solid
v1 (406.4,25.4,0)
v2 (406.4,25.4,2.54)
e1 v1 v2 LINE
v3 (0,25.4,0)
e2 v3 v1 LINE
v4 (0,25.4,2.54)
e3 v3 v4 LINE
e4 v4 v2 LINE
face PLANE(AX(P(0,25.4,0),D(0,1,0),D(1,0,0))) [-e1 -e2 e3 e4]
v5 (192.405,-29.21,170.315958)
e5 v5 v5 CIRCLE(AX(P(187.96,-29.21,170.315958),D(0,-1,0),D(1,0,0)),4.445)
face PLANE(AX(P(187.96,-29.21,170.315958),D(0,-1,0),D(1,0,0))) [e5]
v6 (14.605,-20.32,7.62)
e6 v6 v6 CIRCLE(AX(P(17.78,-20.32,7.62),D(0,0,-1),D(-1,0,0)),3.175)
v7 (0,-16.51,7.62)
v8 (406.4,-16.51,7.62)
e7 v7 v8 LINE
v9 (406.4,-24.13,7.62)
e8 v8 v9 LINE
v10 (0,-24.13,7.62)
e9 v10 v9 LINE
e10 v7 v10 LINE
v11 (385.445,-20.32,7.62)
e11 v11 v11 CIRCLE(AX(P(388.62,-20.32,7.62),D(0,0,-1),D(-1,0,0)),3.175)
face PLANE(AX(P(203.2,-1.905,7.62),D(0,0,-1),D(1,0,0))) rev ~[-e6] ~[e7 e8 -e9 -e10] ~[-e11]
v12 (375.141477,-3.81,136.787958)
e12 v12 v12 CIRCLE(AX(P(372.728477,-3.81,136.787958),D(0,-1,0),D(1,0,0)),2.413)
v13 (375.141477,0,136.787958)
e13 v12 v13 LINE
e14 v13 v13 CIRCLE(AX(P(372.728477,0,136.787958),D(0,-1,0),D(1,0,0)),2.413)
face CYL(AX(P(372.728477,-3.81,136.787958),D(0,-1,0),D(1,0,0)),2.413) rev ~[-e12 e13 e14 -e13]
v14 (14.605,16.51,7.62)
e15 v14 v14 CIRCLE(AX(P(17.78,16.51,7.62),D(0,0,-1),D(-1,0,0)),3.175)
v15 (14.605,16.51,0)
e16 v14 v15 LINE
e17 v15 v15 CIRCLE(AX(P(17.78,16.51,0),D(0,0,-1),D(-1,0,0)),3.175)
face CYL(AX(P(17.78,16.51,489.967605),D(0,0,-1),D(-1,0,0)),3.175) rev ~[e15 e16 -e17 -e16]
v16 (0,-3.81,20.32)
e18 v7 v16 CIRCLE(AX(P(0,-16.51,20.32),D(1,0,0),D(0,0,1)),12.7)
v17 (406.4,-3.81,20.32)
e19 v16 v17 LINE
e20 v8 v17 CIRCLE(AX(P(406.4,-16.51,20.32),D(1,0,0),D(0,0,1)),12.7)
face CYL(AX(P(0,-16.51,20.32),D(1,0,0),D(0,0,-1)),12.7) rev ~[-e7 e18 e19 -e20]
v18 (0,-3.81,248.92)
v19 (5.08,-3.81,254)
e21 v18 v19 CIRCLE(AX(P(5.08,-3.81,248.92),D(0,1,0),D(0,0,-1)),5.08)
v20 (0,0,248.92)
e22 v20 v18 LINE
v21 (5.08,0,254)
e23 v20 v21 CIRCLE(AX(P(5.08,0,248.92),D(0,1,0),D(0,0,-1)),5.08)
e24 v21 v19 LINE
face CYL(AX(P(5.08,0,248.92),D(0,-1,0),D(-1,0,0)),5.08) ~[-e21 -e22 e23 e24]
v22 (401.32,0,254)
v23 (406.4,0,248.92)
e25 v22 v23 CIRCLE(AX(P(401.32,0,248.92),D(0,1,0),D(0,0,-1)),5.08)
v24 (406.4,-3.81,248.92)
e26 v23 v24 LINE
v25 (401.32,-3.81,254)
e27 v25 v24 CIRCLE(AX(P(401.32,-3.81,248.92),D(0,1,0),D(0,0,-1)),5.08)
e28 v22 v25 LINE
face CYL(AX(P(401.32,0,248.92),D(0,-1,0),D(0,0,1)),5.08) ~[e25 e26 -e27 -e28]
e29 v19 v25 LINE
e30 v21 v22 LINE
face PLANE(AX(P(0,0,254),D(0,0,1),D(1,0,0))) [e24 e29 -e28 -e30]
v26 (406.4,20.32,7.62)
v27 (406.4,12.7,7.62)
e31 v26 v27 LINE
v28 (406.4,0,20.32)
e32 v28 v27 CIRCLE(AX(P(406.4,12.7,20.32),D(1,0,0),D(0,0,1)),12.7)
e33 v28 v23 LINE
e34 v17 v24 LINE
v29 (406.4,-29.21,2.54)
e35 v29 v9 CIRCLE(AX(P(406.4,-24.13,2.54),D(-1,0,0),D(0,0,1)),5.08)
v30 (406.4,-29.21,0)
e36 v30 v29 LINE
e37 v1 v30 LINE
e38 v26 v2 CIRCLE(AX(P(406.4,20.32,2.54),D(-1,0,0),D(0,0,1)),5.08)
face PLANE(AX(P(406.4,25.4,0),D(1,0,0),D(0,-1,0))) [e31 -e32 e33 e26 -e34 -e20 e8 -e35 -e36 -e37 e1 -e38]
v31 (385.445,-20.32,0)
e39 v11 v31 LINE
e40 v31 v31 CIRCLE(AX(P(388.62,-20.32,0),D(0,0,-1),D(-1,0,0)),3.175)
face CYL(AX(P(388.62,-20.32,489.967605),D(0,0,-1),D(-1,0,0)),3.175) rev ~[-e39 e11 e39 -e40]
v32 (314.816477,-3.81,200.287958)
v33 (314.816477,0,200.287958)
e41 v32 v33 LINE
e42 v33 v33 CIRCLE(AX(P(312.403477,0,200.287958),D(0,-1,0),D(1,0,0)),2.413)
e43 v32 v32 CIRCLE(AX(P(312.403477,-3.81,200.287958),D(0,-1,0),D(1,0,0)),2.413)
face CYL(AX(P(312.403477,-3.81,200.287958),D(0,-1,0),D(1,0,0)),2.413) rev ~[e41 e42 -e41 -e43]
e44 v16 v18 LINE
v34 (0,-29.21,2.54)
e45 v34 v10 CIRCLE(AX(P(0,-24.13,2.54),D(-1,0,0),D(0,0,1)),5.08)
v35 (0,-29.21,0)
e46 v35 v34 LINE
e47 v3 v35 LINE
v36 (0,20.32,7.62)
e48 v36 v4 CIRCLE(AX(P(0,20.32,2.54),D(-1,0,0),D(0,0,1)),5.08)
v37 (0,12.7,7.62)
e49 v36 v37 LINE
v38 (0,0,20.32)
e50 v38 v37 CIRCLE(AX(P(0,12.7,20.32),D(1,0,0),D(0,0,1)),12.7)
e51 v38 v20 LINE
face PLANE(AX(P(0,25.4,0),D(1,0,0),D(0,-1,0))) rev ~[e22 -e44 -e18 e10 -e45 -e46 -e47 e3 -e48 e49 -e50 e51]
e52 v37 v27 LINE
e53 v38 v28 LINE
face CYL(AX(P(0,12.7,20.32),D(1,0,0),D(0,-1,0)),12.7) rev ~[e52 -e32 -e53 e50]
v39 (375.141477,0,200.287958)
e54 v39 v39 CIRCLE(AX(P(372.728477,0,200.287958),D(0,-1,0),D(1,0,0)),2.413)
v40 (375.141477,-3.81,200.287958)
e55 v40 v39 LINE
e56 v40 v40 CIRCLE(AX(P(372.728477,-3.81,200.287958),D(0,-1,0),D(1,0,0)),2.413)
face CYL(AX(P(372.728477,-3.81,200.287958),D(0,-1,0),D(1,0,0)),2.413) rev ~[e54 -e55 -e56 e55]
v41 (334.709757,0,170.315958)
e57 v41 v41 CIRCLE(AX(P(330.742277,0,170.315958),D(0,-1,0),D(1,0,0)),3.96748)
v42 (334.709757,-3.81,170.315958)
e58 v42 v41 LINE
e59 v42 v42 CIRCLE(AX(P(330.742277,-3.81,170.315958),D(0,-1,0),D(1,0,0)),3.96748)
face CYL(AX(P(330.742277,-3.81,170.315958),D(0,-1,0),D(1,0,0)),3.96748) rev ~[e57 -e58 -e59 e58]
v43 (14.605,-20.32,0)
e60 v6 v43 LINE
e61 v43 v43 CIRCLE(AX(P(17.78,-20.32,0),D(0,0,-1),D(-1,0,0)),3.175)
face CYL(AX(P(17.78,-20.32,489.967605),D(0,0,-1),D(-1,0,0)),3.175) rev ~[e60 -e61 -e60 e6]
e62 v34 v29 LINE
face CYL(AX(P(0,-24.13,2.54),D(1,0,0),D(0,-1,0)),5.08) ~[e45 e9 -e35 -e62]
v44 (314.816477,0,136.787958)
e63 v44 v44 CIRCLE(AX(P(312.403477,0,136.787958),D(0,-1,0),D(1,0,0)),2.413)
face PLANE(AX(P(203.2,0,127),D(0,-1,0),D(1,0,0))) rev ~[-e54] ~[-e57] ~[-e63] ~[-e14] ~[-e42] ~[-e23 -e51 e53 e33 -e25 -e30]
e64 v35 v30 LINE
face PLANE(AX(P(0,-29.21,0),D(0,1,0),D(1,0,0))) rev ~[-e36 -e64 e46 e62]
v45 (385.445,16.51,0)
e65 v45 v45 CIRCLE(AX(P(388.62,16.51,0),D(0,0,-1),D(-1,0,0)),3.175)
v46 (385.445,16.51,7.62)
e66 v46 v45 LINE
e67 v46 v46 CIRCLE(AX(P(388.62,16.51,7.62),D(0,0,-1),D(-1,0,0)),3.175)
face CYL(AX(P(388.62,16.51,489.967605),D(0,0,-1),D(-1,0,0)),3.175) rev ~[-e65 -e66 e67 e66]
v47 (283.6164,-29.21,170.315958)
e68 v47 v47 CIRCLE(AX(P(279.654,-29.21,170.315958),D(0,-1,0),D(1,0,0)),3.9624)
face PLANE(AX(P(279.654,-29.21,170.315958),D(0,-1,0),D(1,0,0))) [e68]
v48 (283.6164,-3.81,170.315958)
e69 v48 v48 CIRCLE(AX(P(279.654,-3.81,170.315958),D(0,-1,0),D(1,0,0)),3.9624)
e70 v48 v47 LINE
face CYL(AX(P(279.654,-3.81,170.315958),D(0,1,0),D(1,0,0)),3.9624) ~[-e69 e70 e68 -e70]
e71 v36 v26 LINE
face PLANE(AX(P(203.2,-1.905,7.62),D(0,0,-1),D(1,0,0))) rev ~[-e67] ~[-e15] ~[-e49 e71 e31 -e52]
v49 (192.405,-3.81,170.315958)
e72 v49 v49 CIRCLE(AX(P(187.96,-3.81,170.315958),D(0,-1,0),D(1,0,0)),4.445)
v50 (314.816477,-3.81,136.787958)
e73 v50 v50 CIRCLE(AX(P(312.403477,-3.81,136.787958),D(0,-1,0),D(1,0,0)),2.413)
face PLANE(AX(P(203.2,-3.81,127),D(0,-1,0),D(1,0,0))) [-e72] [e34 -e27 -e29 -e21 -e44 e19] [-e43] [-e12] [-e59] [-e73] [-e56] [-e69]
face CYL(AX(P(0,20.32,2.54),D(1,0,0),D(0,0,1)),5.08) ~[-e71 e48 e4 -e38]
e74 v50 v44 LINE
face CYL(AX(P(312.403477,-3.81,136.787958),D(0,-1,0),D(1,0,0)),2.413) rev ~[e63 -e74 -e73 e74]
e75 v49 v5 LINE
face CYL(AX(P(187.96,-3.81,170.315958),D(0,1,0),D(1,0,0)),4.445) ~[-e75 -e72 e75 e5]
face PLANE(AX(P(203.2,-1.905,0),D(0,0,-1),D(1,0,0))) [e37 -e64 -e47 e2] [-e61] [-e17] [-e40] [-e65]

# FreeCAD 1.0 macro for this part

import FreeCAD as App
import Part
import Sketcher
Q = App.Units.Quantity


def edges_at(feature, points):
    """Names of the edges that pass closest to the given points."""
    edges = feature.Shape.Edges
    near = lambda p: min(range(len(edges)), key=lambda i: edges[i].distToShape(Part.Vertex(*p))[0])
    return sorted({f"Edge{near(p) + 1}" for p in points})

doc = App.newDocument("Part")
body = doc.addObject("PartDesign::Body", "Body")

sketch1 = body.newObject("Sketcher::SketchObject", "Sketch")
sketch1.AttachmentSupport = (doc.getObject("XZ_Plane"), [""])
sketch1.MapMode = "FlatFace"
sketch1.addGeometry([
    Part.LineSegment(App.Vector(0, 254, 0), App.Vector(0, 0, 0)),
    Part.LineSegment(App.Vector(0, 0, 0), App.Vector(406, 0, 0)),
    Part.LineSegment(App.Vector(406, 0, 0), App.Vector(406, 254, 0)),
    Part.LineSegment(App.Vector(406, 254, 0), App.Vector(0, 254, 0)),
], False)
sketch1.addConstraint([
    Sketcher.Constraint("Coincident", 0, 2, 1, 1),
    Sketcher.Constraint("Coincident", 1, 2, 2, 1),
    Sketcher.Constraint("Coincident", 2, 2, 3, 1),
    Sketcher.Constraint("Coincident", 3, 2, 0, 1),
    Sketcher.Constraint("Vertical", 0),
    Sketcher.Constraint("Horizontal", 1),
    Sketcher.Constraint("Vertical", 2),
    Sketcher.Constraint("Horizontal", 3),
    Sketcher.Constraint("Coincident", 0, 2, -1, 1),
    Sketcher.Constraint("DistanceX", 1, 1, 1, 2, Q("16 in")),
    Sketcher.Constraint("DistanceY", 0, 2, 0, 1, Q("10 in")),
])
pad1 = body.newObject("PartDesign::Pad", "Pad")
pad1.Profile = sketch1
pad1.Length = Q("0.15 in")

sketch2 = body.newObject("Sketcher::SketchObject", "Sketch001")
sketch2.AttachmentSupport = (doc.getObject("XY_Plane"), [""])
sketch2.MapMode = "FlatFace"
sketch2.addGeometry([
    Part.LineSegment(App.Vector(0, -29, 0), App.Vector(0, 25, 0)),
    Part.LineSegment(App.Vector(0, 25, 0), App.Vector(406, 25, 0)),
    Part.LineSegment(App.Vector(406, 25, 0), App.Vector(406, -29, 0)),
    Part.LineSegment(App.Vector(406, -29, 0), App.Vector(0, -29, 0)),
], False)
sketch2.addConstraint([
    Sketcher.Constraint("Coincident", 0, 2, 1, 1),
    Sketcher.Constraint("Coincident", 1, 2, 2, 1),
    Sketcher.Constraint("Coincident", 2, 2, 3, 1),
    Sketcher.Constraint("Coincident", 3, 2, 0, 1),
    Sketcher.Constraint("Vertical", 0),
    Sketcher.Constraint("Horizontal", 1),
    Sketcher.Constraint("Vertical", 2),
    Sketcher.Constraint("Horizontal", 3),
    Sketcher.Constraint("PointOnObject", 0, 2, -2),
    Sketcher.Constraint("DistanceX", 1, 1, 1, 2, Q("16 in")),
    Sketcher.Constraint("DistanceY", -1, 1, 0, 2, Q("1 in")),
    Sketcher.Constraint("DistanceY", 0, 1, 0, 2, Q("2.15 in")),
])
pad2 = body.newObject("PartDesign::Pad", "Pad001")
pad2.Profile = sketch2
pad2.Length = Q("0.3 in")
doc.recompute()

fillet = body.newObject("PartDesign::Fillet", "Fillet")
fillet.Base = (pad2, edges_at(pad2, [(203.2, 0, 7.62), (203.2, -3.81, 7.62)]))
fillet.Radius = Q("0.5 in")
doc.recompute()

fillet2 = body.newObject("PartDesign::Fillet", "Fillet001")
fillet2.Base = (fillet, edges_at(fillet, [
    (203.2, -29.21, 7.62),
    (203.2, 25.4, 7.62),
    (406.4, -1.905, 254),
    (0, -1.905, 254),
]))
fillet2.Radius = Q("0.2 in")

sketch3 = body.newObject("Sketcher::SketchObject", "Sketch002")
sketch3.AttachmentSupport = (doc.getObject("XZ_Plane"), [""])
sketch3.MapMode = "FlatFace"
sketch3.AttachmentOffset = App.Placement(App.Vector(0, 0, 0.15 * 25.4), App.Rotation())
sketch3.addGeometry([
    Part.Circle(App.Vector(312.4, 200.3, 0), App.Vector(0, 0, 1), 2.4),
    Part.Circle(App.Vector(372.7, 200.3, 0), App.Vector(0, 0, 1), 2.4),
    Part.Circle(App.Vector(312.4, 136.8, 0), App.Vector(0, 0, 1), 2.4),
    Part.Circle(App.Vector(372.7, 136.8, 0), App.Vector(0, 0, 1), 2.4),
    Part.Circle(App.Vector(330.7, 170.3, 0), App.Vector(0, 0, 1), 4),
], False)
sketch3.addConstraint([
    Sketcher.Constraint("Equal", 0, 1),
    Sketcher.Constraint("Equal", 1, 2),
    Sketcher.Constraint("Equal", 2, 3),
    Sketcher.Constraint("Horizontal", 0, 3, 1, 3),
    Sketcher.Constraint("Horizontal", 2, 3, 3, 3),
    Sketcher.Constraint("Vertical", 0, 3, 2, 3),
    Sketcher.Constraint("Vertical", 1, 3, 3, 3),
    Sketcher.Constraint("Diameter", 0, Q("0.19 in")),
    Sketcher.Constraint("Diameter", 4, Q("0.3124 in")),
    Sketcher.Constraint("DistanceY", 2, 3, 0, 3, Q("2.5 in")),
    Sketcher.Constraint("DistanceY", 4, 3, 0, 3, Q("1.18 in")),
    Sketcher.Constraint("DistanceX", 0, 3, 1, 3, Q("2.375 in")),
    Sketcher.Constraint("DistanceX", 0, 3, 4, 3, Q("0.722 in")),
    Sketcher.Constraint("DistanceY", -1, 1, 0, 3, Q("200.287958 mm")),
    Sketcher.Constraint("DistanceX", -1, 1, 0, 3, Q("312.403477 mm")),
])
pocket1 = body.newObject("PartDesign::Pocket", "Pocket")
pocket1.Profile = sketch3
pocket1.Type = "ThroughAll"

sketch4 = body.newObject("Sketcher::SketchObject", "Sketch003")
sketch4.AttachmentSupport = (doc.getObject("XZ_Plane"), [""])
sketch4.MapMode = "FlatFace"
sketch4.AttachmentOffset = App.Placement(App.Vector(0, 0, 0.15 * 25.4), App.Rotation())
sketch4.addGeometry(Part.Circle(App.Vector(279.7, 170.3, 0), App.Vector(0, 0, 1), 4), False)
sketch4.addConstraint([
    Sketcher.Constraint("Diameter", 0, Q("0.312 in")),
    Sketcher.Constraint("DistanceX", -1, 1, 0, 3, Q("11.01 in")),
    Sketcher.Constraint("DistanceY", -1, 1, 0, 3, Q("170.315958 mm")),
])
pad3 = body.newObject("PartDesign::Pad", "Pad002")
pad3.Profile = sketch4
pad3.Length = Q("1 in")

sketch5 = body.newObject("Sketcher::SketchObject", "Sketch004")
sketch5.AttachmentSupport = (doc.getObject("XZ_Plane"), [""])
sketch5.MapMode = "FlatFace"
sketch5.AttachmentOffset = App.Placement(App.Vector(0, 0, 0.15 * 25.4), App.Rotation())
sketch5.addGeometry(Part.Circle(App.Vector(188, 170.3, 0), App.Vector(0, 0, 1), 4.4), False)
sketch5.addConstraint([
    Sketcher.Constraint("Diameter", 0, Q("0.35 in")),
    Sketcher.Constraint("DistanceX", -1, 1, 0, 3, Q("7.4 in")),
    Sketcher.Constraint("DistanceY", -1, 1, 0, 3, Q("170.315958 mm")),
])
pad4 = body.newObject("PartDesign::Pad", "Pad003")
pad4.Profile = sketch5
pad4.Length = Q("1 in")

sketch6 = body.newObject("Sketcher::SketchObject", "Sketch005")
sketch6.AttachmentSupport = (doc.getObject("XY_Plane"), [""])
sketch6.MapMode = "FlatFace"
sketch6.AttachmentOffset = App.Placement(App.Vector(0, 0, 0.3 * 25.4), App.Rotation())
sketch6.addGeometry([
    Part.Circle(App.Vector(388.6, 16.5, 0), App.Vector(0, 0, 1), 3.2),
    Part.Circle(App.Vector(388.6, -20.3, 0), App.Vector(0, 0, 1), 3.2),
    Part.Circle(App.Vector(17.8, 16.5, 0), App.Vector(0, 0, 1), 3.2),
    Part.Circle(App.Vector(17.8, -20.3, 0), App.Vector(0, 0, 1), 3.2),
], False)
sketch6.addConstraint([
    Sketcher.Constraint("Equal", 0, 1),
    Sketcher.Constraint("Equal", 1, 2),
    Sketcher.Constraint("Equal", 2, 3),
    Sketcher.Constraint("Horizontal", 0, 3, 2, 3),
    Sketcher.Constraint("Horizontal", 1, 3, 3, 3),
    Sketcher.Constraint("Vertical", 0, 3, 1, 3),
    Sketcher.Constraint("Vertical", 2, 3, 3, 3),
    Sketcher.Constraint("Diameter", 0, Q("0.25 in")),
    Sketcher.Constraint("DistanceX", -1, 1, 0, 3, Q("15.3 in")),
    Sketcher.Constraint("DistanceY", 1, 3, -1, 1, Q("0.8 in")),
    Sketcher.Constraint("DistanceX", -1, 1, 2, 3, Q("0.7 in")),
    Sketcher.Constraint("DistanceY", -1, 1, 0, 3, Q("0.65 in")),
])
doc.recompute()
hole = body.newObject("PartDesign::Hole", "Hole")
hole.Profile = sketch6
hole.ThreadType = "None"
hole.Diameter = Q("0.25 in")
hole.DepthType = "ThroughAll"

doc.recompute()
